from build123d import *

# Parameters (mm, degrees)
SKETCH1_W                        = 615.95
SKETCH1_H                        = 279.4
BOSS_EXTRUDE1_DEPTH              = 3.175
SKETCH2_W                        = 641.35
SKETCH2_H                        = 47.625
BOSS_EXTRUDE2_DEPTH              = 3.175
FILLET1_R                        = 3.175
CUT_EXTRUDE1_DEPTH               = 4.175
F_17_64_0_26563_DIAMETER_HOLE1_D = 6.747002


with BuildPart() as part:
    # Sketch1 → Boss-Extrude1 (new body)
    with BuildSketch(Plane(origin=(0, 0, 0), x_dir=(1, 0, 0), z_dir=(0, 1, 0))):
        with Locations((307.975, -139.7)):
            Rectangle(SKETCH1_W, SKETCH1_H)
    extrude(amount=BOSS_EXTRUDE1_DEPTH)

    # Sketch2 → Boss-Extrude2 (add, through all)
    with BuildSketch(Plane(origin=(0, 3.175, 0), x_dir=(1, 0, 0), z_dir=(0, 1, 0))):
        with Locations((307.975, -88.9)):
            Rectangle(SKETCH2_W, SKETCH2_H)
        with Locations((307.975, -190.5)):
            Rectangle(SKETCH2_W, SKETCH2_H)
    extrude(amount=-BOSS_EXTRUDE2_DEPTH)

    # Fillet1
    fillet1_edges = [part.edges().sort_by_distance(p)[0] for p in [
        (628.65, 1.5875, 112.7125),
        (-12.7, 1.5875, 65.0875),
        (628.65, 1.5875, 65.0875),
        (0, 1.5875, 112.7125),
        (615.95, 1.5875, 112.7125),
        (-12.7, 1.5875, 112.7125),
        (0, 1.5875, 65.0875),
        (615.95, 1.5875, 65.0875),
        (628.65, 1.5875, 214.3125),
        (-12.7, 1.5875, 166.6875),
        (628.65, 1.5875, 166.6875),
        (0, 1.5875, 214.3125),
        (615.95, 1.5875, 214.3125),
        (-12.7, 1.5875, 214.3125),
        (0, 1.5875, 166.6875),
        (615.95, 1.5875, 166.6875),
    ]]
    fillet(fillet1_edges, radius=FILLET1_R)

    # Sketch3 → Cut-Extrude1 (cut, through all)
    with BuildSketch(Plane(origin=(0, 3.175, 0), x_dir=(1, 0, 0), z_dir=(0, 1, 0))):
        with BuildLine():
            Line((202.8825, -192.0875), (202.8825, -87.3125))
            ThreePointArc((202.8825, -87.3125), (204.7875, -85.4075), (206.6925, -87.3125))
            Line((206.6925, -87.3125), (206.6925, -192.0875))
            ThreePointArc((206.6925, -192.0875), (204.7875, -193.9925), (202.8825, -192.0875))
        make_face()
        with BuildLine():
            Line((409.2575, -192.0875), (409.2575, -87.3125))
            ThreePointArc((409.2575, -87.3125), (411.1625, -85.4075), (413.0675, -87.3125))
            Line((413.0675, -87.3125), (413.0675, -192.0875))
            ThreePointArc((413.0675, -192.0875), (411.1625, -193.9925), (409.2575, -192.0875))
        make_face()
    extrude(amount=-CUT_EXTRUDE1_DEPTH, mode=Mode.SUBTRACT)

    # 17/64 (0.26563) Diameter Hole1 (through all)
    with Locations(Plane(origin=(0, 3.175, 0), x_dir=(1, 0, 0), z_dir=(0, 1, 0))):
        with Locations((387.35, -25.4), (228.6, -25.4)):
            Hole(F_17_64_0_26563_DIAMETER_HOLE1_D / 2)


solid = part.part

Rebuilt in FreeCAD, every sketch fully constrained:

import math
import FreeCAD as App
import Part
import Sketcher

V = App.Vector
Q = App.Units.Quantity


def edges_at(feature, points):
    """Names of the edges that pass closest to the given points."""
    edges = feature.Shape.Edges
    near = lambda p: min(range(len(edges)), key=lambda i: edges[i].distToShape(Part.Vertex(*p))[0])
    return sorted({f"Edge{near(p) + 1}" for p in points})

doc = App.newDocument("Part")
body = doc.addObject("PartDesign::Body", "Body")

# Sketch on XZ plane
sketch1 = body.newObject("Sketcher::SketchObject", "Sketch")
sketch1.AttachmentSupport = (doc.getObject("XZ_Plane"), [""])
sketch1.MapMode = "FlatFace"
sketch1.addGeometry(Part.LineSegment(V(0, 0, 0), V(0, 279.4, 0)), False)
sketch1.addGeometry(Part.LineSegment(V(0, 279.4, 0), V(615.95, 279.4, 0)), False)
sketch1.addGeometry(Part.LineSegment(V(615.95, 279.4, 0), V(615.95, 0, 0)), False)
sketch1.addGeometry(Part.LineSegment(V(615.95, 0, 0), V(0, 0, 0)), False)
sketch1.addConstraint(Sketcher.Constraint("Coincident", 0, 2, 1, 1))
sketch1.addConstraint(Sketcher.Constraint("Coincident", 1, 2, 2, 1))
sketch1.addConstraint(Sketcher.Constraint("Coincident", 2, 2, 3, 1))
sketch1.addConstraint(Sketcher.Constraint("Coincident", 3, 2, 0, 1))
sketch1.addConstraint(Sketcher.Constraint("Vertical", 0))
sketch1.addConstraint(Sketcher.Constraint("Horizontal", 1))
sketch1.addConstraint(Sketcher.Constraint("Vertical", 2))
sketch1.addConstraint(Sketcher.Constraint("Horizontal", 3))
sketch1.addConstraint(Sketcher.Constraint("Coincident", 3, 2, -1, 1))
sketch1.addConstraint(Sketcher.Constraint("DistanceY", 0, 1, 0, 2, Q("11 in")))
sketch1.addConstraint(Sketcher.Constraint("DistanceX", 1, 1, 1, 2, Q("24.25 in")))
pad1 = body.newObject("PartDesign::Pad", "Pad")
pad1.Profile = sketch1
pad1.Length = Q("0.125 in")
pad1.Reversed = True

# Sketch on XZ plane
sketch2 = body.newObject("Sketcher::SketchObject", "Sketch001")
sketch2.AttachmentSupport = (doc.getObject("XZ_Plane"), [""])
sketch2.MapMode = "FlatFace"
sketch2.AttachmentOffset = App.Placement(V(0, 0, -0.125 * 25.4), App.Rotation())
sketch2.addGeometry(Part.LineSegment(V(-12.7, 65.0875, 0), V(-12.7, 112.7125, 0)), False)
sketch2.addGeometry(Part.LineSegment(V(-12.7, 112.7125, 0), V(628.65, 112.7125, 0)), False)
sketch2.addGeometry(Part.LineSegment(V(628.65, 112.7125, 0), V(628.65, 65.0875, 0)), False)
sketch2.addGeometry(Part.LineSegment(V(628.65, 65.0875, 0), V(-12.7, 65.0875, 0)), False)
sketch2.addGeometry(Part.LineSegment(V(-12.7, 166.6875, 0), V(-12.7, 214.3125, 0)), False)
sketch2.addGeometry(Part.LineSegment(V(-12.7, 214.3125, 0), V(628.65, 214.3125, 0)), False)
sketch2.addGeometry(Part.LineSegment(V(628.65, 214.3125, 0), V(628.65, 166.6875, 0)), False)
sketch2.addGeometry(Part.LineSegment(V(628.65, 166.6875, 0), V(-12.7, 166.6875, 0)), False)
sketch2.addConstraint(Sketcher.Constraint("Coincident", 0, 2, 1, 1))
sketch2.addConstraint(Sketcher.Constraint("Coincident", 1, 2, 2, 1))
sketch2.addConstraint(Sketcher.Constraint("Coincident", 2, 2, 3, 1))
sketch2.addConstraint(Sketcher.Constraint("Coincident", 3, 2, 0, 1))
sketch2.addConstraint(Sketcher.Constraint("Coincident", 4, 2, 5, 1))
sketch2.addConstraint(Sketcher.Constraint("Coincident", 5, 2, 6, 1))
sketch2.addConstraint(Sketcher.Constraint("Coincident", 6, 2, 7, 1))
sketch2.addConstraint(Sketcher.Constraint("Coincident", 7, 2, 4, 1))
sketch2.addConstraint(Sketcher.Constraint("Vertical", 0))
sketch2.addConstraint(Sketcher.Constraint("Horizontal", 1))
sketch2.addConstraint(Sketcher.Constraint("Vertical", 2))
sketch2.addConstraint(Sketcher.Constraint("Horizontal", 3))
sketch2.addConstraint(Sketcher.Constraint("Vertical", 4))
sketch2.addConstraint(Sketcher.Constraint("Horizontal", 5))
sketch2.addConstraint(Sketcher.Constraint("Vertical", 6))
sketch2.addConstraint(Sketcher.Constraint("Horizontal", 7))
sketch2.addConstraint(Sketcher.Constraint("Vertical", 3, 2, 4, 2))
sketch2.addConstraint(Sketcher.Constraint("Vertical", 2, 2, 5, 2))
sketch2.addConstraint(Sketcher.Constraint("Equal", 2, 4))
sketch2.addConstraint(Sketcher.Constraint("DistanceY", 0, 2, 4, 2, Q("4 in")))
sketch2.addConstraint(Sketcher.Constraint("DistanceX", 1, 1, 1, 2, Q("25.25 in")))
sketch2.addConstraint(Sketcher.Constraint("DistanceX", 0, 2, -1, 1, Q("0.5 in")))
sketch2.addConstraint(Sketcher.Constraint("DistanceY", 0, 1, 0, 2, Q("1.875 in")))
sketch2.addConstraint(Sketcher.Constraint("DistanceY", -1, 1, 0, 2, Q("4.4375 in")))
pad2 = body.newObject("PartDesign::Pad", "Pad001")
pad2.Profile = sketch2
pad2.Type = "UpToLast"
doc.recompute()

fillet = body.newObject("PartDesign::Fillet", "Fillet")
fillet.Base = (pad2, edges_at(pad2, [
    (628.65, 1.587, 112.713),
    (-12.7, 1.587, 65.088),
    (628.65, 1.587, 65.088),
    (0, 1.587, 112.713),
    (615.95, 1.587, 112.713),
    (-12.7, 1.587, 112.713),
    (0, 1.587, 65.088),
    (615.95, 1.587, 65.088),
    (628.65, 1.587, 214.312),
    (-12.7, 1.587, 166.688),
    (628.65, 1.587, 166.688),
    (0, 1.587, 214.312),
    (615.95, 1.587, 214.312),
    (-12.7, 1.587, 214.312),
    (0, 1.587, 166.688),
    (615.95, 1.587, 166.688),
]))
fillet.Radius = Q("0.125 in")

# Sketch on XZ plane
sketch3 = body.newObject("Sketcher::SketchObject", "Sketch002")
sketch3.AttachmentSupport = (doc.getObject("XZ_Plane"), [""])
sketch3.MapMode = "FlatFace"
sketch3.AttachmentOffset = App.Placement(V(0, 0, -0.125 * 25.4), App.Rotation())
sketch3.addGeometry(Part.LineSegment(V(202.8825, 87.3125, 0), V(202.8825, 192.0875, 0)), False)
sketch3.addGeometry(Part.ArcOfCircle(Part.Circle(V(204.7875, 192.0875, 0), V(0, 0, 1), 1.905), math.radians(0), math.radians(180)), False)
sketch3.addGeometry(Part.LineSegment(V(206.6925, 192.0875, 0), V(206.6925, 87.3125, 0)), False)
sketch3.addGeometry(Part.ArcOfCircle(Part.Circle(V(204.7875, 87.3125, 0), V(0, 0, 1), 1.905), math.radians(180), math.radians(360)), False)
sketch3.addGeometry(Part.LineSegment(V(409.2575, 87.3125, 0), V(409.2575, 192.0875, 0)), False)
sketch3.addGeometry(Part.ArcOfCircle(Part.Circle(V(411.1625, 192.0875, 0), V(0, 0, 1), 1.905), math.radians(0), math.radians(180)), False)
sketch3.addGeometry(Part.LineSegment(V(413.0675, 192.0875, 0), V(413.0675, 87.3125, 0)), False)
sketch3.addGeometry(Part.ArcOfCircle(Part.Circle(V(411.1625, 87.3125, 0), V(0, 0, 1), 1.905), math.radians(180), math.radians(360)), False)
sketch3.addConstraint(Sketcher.Constraint("Tangent", 0, 2, 1, 2))
sketch3.addConstraint(Sketcher.Constraint("Tangent", 1, 1, 2, 1))
sketch3.addConstraint(Sketcher.Constraint("Tangent", 2, 2, 3, 2))
sketch3.addConstraint(Sketcher.Constraint("Tangent", 3, 1, 0, 1))
sketch3.addConstraint(Sketcher.Constraint("Tangent", 4, 2, 5, 2))
sketch3.addConstraint(Sketcher.Constraint("Tangent", 5, 1, 6, 1))
sketch3.addConstraint(Sketcher.Constraint("Tangent", 6, 2, 7, 2))
sketch3.addConstraint(Sketcher.Constraint("Tangent", 7, 1, 4, 1))
sketch3.addConstraint(Sketcher.Constraint("Vertical", 0))
sketch3.addConstraint(Sketcher.Constraint("Vertical", 2))
sketch3.addConstraint(Sketcher.Constraint("Vertical", 4))
sketch3.addConstraint(Sketcher.Constraint("Vertical", 6))
sketch3.addConstraint(Sketcher.Constraint("Equal", 3, 5))
sketch3.addConstraint(Sketcher.Constraint("Horizontal", 1, 3, 5, 3))
sketch3.addConstraint(Sketcher.Constraint("Horizontal", 3, 3, 7, 3))
sketch3.addConstraint(Sketcher.Constraint("Radius", 1, Q("0.075 in")))
sketch3.addConstraint(Sketcher.Constraint("DistanceX", 0, 2, 5, 3, Q("8.2 in")))
sketch3.addConstraint(Sketcher.Constraint("DistanceY", 0, 1, 0, 2, Q("4.125 in")))
sketch3.addConstraint(Sketcher.Constraint("DistanceX", -1, 1, 1, 3, Q("8.0625 in")))
sketch3.addConstraint(Sketcher.Constraint("DistanceY", -1, 1, 1, 3, Q("7.5625 in")))
pocket1 = body.newObject("PartDesign::Pocket", "Pocket")
pocket1.Profile = sketch3
pocket1.Type = "ThroughAll"
pocket1.Reversed = True

# Sketch on XZ plane
sketch4 = body.newObject("Sketcher::SketchObject", "Sketch003")
sketch4.AttachmentSupport = (doc.getObject("XZ_Plane"), [""])
sketch4.MapMode = "FlatFace"
sketch4.AttachmentOffset = App.Placement(V(0, 0, -0.125 * 25.4), App.Rotation())
sketch4.addGeometry(Part.Circle(V(387.35, 25.4, 0), V(0, 0, 1), 3.373501), False)
sketch4.addGeometry(Part.Circle(V(228.6, 25.4, 0), V(0, 0, 1), 3.373501), False)
sketch4.addConstraint(Sketcher.Constraint("Equal", 0, 1))
sketch4.addConstraint(Sketcher.Constraint("Horizontal", 0, 3, 1, 3))
sketch4.addConstraint(Sketcher.Constraint("DistanceY", -1, 1, 0, 3, Q("1 in")))
sketch4.addConstraint(Sketcher.Constraint("DistanceX", -1, 1, 1, 3, Q("9 in")))
sketch4.addConstraint(Sketcher.Constraint("DistanceX", -1, 1, 0, 3, Q("15.25 in")))
sketch4.addConstraint(Sketcher.Constraint("Diameter", 0, 6.747002))
doc.recompute()
hole = body.newObject("PartDesign::Hole", "Hole")
hole.Profile = sketch4
hole.ThreadType = "None"
hole.Diameter = 6.747002
hole.DepthType = "ThroughAll"
hole.Reversed = True

doc.recompute()
